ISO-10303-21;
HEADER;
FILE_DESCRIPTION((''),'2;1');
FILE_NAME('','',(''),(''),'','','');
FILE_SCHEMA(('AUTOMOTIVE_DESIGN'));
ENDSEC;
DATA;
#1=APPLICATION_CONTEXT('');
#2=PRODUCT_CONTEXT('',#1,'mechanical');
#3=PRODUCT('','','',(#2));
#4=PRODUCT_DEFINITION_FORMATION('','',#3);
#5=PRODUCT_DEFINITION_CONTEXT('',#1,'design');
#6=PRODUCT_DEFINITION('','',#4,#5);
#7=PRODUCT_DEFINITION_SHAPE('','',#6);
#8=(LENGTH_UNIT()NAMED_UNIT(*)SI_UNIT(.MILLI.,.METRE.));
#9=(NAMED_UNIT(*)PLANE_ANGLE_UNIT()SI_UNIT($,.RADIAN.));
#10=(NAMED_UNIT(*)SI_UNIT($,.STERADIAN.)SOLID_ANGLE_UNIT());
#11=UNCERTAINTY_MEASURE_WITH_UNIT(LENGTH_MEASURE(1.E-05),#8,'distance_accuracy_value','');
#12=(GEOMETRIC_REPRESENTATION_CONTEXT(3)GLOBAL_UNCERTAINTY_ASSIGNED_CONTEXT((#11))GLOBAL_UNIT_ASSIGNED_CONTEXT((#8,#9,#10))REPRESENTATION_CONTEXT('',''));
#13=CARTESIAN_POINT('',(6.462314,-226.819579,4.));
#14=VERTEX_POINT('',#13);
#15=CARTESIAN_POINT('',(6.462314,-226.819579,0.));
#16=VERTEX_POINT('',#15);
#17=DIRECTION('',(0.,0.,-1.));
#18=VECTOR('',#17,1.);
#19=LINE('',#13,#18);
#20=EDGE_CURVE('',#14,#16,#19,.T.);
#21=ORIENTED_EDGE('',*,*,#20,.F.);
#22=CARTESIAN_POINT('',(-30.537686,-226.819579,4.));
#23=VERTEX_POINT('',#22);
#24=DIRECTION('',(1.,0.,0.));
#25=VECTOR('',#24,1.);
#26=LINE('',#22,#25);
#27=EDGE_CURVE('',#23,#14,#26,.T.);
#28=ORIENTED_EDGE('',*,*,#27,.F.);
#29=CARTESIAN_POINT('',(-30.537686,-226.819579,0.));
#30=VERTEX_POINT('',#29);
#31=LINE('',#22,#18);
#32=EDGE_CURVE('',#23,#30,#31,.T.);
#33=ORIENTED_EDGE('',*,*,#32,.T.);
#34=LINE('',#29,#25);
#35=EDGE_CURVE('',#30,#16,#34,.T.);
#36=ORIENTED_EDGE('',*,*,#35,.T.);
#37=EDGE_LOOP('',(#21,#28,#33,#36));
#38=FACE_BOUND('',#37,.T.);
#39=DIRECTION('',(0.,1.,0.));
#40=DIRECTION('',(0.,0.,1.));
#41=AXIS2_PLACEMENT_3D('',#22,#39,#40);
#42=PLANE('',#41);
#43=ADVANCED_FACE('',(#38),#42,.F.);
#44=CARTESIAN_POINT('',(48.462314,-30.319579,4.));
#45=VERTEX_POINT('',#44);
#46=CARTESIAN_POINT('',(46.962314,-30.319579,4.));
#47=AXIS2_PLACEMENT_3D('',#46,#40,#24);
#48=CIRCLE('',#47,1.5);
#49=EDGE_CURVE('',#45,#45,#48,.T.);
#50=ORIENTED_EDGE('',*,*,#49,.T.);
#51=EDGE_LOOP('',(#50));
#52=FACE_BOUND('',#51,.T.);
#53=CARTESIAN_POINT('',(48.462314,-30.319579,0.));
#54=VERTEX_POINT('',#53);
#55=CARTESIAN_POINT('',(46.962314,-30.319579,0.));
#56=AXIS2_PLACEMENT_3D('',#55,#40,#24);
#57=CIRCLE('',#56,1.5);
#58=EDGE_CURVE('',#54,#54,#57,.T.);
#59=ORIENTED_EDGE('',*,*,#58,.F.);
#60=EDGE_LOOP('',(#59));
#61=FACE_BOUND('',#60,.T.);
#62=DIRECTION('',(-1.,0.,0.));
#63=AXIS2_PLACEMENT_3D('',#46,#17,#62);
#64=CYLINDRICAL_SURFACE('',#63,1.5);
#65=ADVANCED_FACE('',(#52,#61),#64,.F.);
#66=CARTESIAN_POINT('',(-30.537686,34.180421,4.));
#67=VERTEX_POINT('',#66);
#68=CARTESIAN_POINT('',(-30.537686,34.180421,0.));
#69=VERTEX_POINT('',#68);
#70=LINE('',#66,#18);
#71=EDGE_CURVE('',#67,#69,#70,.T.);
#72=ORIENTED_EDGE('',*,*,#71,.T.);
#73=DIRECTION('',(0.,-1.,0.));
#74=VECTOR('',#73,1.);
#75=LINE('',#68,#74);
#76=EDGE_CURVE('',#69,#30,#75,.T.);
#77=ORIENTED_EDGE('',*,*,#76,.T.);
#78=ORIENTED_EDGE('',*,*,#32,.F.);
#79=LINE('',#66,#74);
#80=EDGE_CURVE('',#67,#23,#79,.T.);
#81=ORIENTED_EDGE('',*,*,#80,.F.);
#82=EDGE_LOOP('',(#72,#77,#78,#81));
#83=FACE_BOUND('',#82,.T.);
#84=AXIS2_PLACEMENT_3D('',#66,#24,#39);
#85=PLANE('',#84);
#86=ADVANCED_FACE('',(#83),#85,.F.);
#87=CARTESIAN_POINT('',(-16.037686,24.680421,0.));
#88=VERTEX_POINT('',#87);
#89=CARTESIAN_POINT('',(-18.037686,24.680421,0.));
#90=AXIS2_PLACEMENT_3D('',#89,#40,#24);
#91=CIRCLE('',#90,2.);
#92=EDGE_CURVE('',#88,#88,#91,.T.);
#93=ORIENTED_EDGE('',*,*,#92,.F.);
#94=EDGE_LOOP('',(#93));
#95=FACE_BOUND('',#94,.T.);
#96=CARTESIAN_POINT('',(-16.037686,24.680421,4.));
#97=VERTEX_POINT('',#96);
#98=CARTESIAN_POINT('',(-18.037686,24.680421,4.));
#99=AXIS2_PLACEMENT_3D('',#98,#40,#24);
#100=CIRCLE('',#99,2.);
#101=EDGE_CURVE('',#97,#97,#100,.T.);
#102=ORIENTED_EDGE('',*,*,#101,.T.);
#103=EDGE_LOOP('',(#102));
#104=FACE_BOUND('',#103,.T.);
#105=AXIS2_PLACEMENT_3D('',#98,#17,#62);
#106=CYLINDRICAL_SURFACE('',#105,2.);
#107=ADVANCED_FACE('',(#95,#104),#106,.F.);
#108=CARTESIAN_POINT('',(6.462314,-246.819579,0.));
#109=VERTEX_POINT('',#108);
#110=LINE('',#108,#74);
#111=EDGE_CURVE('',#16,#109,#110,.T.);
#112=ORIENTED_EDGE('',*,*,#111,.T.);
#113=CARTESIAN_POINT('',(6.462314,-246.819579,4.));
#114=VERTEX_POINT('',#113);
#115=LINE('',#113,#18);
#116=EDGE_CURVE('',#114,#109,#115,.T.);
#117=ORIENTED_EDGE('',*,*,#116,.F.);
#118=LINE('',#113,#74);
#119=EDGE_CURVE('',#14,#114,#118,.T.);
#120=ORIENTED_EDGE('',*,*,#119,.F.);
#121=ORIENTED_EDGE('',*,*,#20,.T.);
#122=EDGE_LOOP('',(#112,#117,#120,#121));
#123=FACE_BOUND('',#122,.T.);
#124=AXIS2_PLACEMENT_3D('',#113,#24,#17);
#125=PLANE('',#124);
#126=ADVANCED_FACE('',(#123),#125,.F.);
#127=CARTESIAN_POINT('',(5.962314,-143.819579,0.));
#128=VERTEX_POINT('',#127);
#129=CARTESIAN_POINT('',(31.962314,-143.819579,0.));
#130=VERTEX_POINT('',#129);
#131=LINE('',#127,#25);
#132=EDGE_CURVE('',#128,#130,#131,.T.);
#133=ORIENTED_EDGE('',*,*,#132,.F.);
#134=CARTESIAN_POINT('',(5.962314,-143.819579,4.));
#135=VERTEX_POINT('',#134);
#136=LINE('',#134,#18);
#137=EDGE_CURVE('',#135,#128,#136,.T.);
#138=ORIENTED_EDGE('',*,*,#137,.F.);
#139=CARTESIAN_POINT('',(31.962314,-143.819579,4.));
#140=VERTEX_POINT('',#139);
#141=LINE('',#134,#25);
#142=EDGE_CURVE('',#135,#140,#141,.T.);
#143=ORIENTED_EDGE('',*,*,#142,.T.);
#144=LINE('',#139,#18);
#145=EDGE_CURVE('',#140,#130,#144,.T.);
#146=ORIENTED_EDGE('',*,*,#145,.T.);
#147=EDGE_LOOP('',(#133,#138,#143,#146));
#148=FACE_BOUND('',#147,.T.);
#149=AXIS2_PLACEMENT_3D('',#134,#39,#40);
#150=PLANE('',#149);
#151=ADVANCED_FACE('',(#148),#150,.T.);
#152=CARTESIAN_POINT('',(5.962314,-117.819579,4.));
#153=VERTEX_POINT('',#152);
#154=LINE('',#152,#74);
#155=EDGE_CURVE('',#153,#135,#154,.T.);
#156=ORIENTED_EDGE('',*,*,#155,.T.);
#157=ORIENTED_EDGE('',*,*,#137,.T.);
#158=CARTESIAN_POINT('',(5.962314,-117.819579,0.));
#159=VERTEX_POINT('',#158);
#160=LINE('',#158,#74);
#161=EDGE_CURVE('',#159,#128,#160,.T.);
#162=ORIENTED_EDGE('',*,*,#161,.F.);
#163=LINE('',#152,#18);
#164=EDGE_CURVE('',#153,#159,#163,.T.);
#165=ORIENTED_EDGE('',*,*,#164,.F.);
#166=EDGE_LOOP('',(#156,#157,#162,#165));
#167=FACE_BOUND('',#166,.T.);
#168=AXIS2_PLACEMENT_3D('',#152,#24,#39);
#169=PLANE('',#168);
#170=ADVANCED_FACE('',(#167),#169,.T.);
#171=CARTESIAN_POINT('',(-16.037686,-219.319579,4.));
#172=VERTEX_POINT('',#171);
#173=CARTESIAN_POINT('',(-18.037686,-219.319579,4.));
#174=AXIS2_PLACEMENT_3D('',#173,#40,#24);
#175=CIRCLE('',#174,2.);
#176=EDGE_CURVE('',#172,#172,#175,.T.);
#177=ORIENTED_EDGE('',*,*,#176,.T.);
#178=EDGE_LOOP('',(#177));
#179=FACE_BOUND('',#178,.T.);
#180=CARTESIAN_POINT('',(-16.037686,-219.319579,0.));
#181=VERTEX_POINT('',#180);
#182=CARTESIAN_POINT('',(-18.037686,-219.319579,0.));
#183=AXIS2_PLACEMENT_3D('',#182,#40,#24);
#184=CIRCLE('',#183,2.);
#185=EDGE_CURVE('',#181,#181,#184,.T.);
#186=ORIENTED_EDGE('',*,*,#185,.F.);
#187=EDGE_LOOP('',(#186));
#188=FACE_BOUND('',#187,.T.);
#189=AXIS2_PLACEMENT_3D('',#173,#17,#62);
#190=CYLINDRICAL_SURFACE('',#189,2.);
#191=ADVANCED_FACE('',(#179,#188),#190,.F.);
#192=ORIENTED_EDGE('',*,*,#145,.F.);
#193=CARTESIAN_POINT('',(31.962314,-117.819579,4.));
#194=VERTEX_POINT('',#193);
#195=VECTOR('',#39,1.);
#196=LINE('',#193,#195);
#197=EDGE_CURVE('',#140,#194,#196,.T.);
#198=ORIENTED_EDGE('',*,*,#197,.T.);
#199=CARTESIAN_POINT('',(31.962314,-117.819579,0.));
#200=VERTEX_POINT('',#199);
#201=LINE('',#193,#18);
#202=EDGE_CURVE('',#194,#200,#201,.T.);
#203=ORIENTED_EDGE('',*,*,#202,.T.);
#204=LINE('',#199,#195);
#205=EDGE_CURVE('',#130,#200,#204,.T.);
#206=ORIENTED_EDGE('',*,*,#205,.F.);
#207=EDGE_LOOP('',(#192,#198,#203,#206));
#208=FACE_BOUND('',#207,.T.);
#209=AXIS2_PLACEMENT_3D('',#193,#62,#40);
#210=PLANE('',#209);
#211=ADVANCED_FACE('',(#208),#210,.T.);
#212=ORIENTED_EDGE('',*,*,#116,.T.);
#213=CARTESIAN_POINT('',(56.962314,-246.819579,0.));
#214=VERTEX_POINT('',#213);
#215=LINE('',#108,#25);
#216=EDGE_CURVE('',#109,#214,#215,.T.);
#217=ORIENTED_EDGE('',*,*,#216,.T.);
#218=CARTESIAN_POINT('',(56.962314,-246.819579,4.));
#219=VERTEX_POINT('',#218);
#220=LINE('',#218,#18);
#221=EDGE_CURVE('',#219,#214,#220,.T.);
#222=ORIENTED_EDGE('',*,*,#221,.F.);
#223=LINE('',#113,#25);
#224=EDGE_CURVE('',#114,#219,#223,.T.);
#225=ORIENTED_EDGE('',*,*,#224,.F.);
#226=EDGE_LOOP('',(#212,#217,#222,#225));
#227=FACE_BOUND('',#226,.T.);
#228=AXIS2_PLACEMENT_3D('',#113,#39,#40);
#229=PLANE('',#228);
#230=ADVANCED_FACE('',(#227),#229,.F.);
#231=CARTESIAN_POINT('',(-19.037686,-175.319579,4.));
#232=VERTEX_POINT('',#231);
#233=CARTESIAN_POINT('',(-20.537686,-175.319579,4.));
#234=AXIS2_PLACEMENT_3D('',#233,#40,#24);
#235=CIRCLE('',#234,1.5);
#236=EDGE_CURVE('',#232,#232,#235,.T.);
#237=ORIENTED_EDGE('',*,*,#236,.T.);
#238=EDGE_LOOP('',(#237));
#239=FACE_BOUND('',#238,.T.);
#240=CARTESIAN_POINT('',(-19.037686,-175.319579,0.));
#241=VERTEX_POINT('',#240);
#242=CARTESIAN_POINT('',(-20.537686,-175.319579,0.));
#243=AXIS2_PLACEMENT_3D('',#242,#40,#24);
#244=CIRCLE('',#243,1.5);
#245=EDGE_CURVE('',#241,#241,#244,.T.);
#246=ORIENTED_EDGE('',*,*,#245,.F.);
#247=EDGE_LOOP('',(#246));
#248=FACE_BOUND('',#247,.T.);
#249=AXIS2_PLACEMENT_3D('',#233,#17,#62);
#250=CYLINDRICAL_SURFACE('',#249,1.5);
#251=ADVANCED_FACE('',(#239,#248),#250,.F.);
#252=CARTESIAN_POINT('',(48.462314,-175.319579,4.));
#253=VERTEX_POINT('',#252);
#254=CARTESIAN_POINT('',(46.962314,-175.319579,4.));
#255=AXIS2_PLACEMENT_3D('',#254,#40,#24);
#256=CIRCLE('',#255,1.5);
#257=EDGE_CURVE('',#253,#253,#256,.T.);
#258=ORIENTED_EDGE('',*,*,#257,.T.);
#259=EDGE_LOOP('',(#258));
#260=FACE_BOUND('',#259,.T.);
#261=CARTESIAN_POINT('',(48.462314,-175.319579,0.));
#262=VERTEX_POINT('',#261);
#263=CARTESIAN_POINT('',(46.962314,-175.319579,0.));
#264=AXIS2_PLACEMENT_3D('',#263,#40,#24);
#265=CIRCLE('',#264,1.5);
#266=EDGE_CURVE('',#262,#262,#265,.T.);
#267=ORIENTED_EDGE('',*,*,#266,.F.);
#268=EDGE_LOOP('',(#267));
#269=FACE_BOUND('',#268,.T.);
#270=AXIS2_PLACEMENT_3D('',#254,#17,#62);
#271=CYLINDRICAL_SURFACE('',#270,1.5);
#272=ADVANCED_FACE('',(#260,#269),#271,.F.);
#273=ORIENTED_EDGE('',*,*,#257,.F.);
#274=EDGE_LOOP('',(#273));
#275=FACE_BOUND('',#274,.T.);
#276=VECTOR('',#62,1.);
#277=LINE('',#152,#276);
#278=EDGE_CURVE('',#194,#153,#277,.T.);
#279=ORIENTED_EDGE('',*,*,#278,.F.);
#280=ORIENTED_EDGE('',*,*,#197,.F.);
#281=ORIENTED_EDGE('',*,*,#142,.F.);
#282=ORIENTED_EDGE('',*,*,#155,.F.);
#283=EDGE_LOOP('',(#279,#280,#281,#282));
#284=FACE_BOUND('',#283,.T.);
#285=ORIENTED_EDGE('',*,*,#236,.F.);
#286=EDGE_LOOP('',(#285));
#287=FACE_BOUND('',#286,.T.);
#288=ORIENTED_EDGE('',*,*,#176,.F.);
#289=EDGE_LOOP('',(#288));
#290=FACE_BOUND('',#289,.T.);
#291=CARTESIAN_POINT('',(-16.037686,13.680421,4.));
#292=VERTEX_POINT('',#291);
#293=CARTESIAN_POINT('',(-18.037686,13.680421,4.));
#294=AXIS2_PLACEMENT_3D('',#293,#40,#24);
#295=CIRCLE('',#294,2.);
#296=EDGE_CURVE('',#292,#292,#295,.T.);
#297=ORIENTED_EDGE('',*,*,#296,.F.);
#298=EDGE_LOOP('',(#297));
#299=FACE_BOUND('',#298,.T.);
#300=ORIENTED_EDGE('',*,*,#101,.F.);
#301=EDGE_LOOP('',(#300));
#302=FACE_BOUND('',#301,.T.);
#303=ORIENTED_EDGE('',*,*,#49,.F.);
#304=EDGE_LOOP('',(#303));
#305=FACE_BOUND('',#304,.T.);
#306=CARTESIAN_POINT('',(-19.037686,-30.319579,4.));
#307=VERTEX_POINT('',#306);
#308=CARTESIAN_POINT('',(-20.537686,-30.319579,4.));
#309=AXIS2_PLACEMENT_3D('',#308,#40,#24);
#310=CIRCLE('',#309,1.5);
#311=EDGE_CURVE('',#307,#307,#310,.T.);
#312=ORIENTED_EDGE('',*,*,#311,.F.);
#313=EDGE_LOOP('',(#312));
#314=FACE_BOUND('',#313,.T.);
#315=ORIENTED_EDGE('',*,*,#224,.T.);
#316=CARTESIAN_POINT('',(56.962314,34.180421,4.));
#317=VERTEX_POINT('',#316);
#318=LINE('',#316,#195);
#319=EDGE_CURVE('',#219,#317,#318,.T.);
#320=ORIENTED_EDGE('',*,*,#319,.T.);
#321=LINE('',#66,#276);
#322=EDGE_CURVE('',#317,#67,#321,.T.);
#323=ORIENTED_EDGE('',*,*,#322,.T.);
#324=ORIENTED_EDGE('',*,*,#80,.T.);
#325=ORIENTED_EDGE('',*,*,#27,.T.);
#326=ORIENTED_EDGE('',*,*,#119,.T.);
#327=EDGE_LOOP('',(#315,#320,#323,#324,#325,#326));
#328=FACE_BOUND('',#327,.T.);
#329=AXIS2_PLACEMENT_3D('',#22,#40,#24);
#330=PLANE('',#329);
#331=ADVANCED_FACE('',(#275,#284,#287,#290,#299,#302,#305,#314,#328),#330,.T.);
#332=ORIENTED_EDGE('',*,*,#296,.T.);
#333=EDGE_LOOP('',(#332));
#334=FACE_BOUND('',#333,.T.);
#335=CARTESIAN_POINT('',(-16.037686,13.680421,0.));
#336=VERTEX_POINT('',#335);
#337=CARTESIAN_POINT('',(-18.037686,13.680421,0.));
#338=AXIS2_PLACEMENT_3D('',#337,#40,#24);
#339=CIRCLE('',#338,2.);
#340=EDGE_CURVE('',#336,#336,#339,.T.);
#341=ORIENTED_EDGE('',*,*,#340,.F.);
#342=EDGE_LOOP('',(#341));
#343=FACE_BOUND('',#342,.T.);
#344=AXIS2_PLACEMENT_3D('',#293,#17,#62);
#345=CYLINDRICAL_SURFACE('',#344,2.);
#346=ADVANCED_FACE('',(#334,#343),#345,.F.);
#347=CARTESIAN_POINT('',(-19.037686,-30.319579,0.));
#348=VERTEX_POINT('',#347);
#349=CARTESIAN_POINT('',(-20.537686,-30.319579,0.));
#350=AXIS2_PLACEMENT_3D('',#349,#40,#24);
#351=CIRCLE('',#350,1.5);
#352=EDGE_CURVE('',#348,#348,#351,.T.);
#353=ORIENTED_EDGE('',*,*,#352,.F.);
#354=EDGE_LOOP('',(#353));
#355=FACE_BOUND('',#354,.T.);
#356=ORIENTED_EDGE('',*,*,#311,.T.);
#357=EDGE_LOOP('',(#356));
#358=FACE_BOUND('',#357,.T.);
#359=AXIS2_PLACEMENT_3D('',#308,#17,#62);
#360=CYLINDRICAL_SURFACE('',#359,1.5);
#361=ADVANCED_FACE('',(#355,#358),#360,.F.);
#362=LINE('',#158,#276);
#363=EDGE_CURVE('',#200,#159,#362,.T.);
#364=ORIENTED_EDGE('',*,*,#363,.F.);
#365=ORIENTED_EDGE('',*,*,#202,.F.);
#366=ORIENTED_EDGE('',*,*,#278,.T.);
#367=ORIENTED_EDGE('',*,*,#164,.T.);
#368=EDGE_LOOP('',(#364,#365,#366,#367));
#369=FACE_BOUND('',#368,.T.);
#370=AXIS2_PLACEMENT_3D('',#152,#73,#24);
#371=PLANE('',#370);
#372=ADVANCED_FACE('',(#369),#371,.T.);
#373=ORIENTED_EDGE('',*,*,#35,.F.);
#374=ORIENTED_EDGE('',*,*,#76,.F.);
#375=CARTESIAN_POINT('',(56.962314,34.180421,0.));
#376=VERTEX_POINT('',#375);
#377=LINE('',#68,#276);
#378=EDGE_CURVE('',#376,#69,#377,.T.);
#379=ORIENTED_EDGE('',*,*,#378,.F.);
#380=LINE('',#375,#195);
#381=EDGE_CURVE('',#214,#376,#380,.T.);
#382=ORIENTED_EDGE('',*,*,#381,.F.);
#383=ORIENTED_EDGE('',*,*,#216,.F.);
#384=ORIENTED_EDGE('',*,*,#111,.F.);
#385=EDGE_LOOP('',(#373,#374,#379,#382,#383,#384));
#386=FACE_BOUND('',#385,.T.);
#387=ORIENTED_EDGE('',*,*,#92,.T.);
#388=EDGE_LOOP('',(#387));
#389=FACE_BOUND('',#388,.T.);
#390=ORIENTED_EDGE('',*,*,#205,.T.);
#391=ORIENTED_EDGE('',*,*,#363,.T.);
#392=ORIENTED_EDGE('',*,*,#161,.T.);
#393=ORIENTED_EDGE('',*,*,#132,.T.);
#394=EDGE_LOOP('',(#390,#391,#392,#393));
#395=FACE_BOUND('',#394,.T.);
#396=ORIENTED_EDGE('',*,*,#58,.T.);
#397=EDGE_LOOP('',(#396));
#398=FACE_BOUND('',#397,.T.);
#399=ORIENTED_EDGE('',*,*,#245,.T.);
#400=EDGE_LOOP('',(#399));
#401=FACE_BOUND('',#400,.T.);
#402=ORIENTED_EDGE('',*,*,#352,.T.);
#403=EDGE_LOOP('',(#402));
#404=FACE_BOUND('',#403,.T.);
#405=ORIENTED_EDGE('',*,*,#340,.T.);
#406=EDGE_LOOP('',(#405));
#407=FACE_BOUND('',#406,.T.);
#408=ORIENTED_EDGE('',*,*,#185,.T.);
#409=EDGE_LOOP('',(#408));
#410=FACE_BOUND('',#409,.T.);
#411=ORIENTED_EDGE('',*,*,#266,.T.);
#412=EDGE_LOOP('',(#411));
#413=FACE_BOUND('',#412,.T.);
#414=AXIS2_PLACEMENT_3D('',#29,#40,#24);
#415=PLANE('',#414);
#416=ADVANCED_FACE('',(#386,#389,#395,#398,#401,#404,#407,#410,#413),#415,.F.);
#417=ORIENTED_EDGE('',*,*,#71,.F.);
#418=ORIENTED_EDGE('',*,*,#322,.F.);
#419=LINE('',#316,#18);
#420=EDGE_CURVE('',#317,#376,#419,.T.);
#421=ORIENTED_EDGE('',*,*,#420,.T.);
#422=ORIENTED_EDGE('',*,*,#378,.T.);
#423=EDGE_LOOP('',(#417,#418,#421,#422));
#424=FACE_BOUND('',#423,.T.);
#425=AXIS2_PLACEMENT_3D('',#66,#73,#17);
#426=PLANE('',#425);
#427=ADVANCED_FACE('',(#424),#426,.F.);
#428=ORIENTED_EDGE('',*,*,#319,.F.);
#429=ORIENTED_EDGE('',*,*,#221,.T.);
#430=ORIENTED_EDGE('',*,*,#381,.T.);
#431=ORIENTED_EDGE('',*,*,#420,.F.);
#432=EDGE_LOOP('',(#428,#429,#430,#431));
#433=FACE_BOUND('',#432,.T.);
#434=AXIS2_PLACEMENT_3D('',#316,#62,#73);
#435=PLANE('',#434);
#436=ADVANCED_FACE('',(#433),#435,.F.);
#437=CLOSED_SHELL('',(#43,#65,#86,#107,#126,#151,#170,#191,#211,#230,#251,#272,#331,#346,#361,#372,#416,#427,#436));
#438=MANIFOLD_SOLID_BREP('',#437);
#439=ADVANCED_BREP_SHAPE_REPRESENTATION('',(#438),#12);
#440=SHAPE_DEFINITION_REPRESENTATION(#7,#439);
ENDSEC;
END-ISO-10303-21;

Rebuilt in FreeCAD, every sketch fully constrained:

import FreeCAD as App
import Part
import Sketcher

doc = App.newDocument("Part")
body = doc.addObject("PartDesign::Body", "Body")

# Sketch on XY plane
sketch1 = body.newObject("Sketcher::SketchObject", "Sketch")
sketch1.AttachmentSupport = (doc.getObject("XY_Plane"), [""])
sketch1.MapMode = "FlatFace"
sketch1.addGeometry([
    Part.LineSegment(App.Vector(56.962314, 34.180421, 0), App.Vector(-30.537686, 34.180421, 0)),  # 0
    Part.LineSegment(App.Vector(-30.537686, 34.180421, 0), App.Vector(-30.537686, -226.819579, 0)),  # 1
    Part.LineSegment(App.Vector(-30.537686, -226.819579, 0), App.Vector(6.462314, -226.819579, 0)),  # 2
    Part.LineSegment(App.Vector(6.462314, -226.819579, 0), App.Vector(6.462314, -246.819579, 0)),  # 3
    Part.LineSegment(App.Vector(6.462314, -246.819579, 0), App.Vector(56.962314, -246.819579, 0)),  # 4
    Part.LineSegment(App.Vector(56.962314, -246.819579, 0), App.Vector(56.962314, 34.180421, 0)),  # 5
    Part.Circle(App.Vector(46.962314, -175.319579, 0), App.Vector(0, 0, 1), 1.5),  # 6
    Part.LineSegment(App.Vector(5.962314, -143.819579, 0), App.Vector(5.962314, -117.819579, 0)),  # 7
    Part.LineSegment(App.Vector(5.962314, -117.819579, 0), App.Vector(31.962314, -117.819579, 0)),  # 8
    Part.LineSegment(App.Vector(31.962314, -117.819579, 0), App.Vector(31.962314, -143.819579, 0)),  # 9
    Part.LineSegment(App.Vector(31.962314, -143.819579, 0), App.Vector(5.962314, -143.819579, 0)),  # 10
    Part.Circle(App.Vector(-18.037686, -219.319579, 0), App.Vector(0, 0, 1), 2),  # 11
    Part.Circle(App.Vector(-20.537686, -175.319579, 0), App.Vector(0, 0, 1), 1.5),  # 12
    Part.Circle(App.Vector(46.962314, -30.319579, 0), App.Vector(0, 0, 1), 1.5),  # 13
    Part.Circle(App.Vector(-20.537686, -30.319579, 0), App.Vector(0, 0, 1), 1.5),  # 14
    Part.Circle(App.Vector(-18.037686, 13.680421, 0), App.Vector(0, 0, 1), 2),  # 15
    Part.Circle(App.Vector(-18.037686, 24.680421, 0), App.Vector(0, 0, 1), 2),  # 16
], False)
sketch1.addConstraint([
    Sketcher.Constraint("Coincident", 0, 2, 1, 1),
    Sketcher.Constraint("Coincident", 1, 2, 2, 1),
    Sketcher.Constraint("Coincident", 2, 2, 3, 1),
    Sketcher.Constraint("Coincident", 3, 2, 4, 1),
    Sketcher.Constraint("Coincident", 4, 2, 5, 1),
    Sketcher.Constraint("Coincident", 5, 2, 0, 1),
    Sketcher.Constraint("Coincident", 7, 2, 8, 1),
    Sketcher.Constraint("Coincident", 8, 2, 9, 1),
    Sketcher.Constraint("Coincident", 9, 2, 10, 1),
    Sketcher.Constraint("Coincident", 10, 2, 7, 1),
    Sketcher.Constraint("Horizontal", 0),
    Sketcher.Constraint("Vertical", 1),
    Sketcher.Constraint("Horizontal", 2),
    Sketcher.Constraint("Vertical", 3),
    Sketcher.Constraint("Horizontal", 4),
    Sketcher.Constraint("Vertical", 5),
    Sketcher.Constraint("Vertical", 7),
    Sketcher.Constraint("Horizontal", 8),
    Sketcher.Constraint("Vertical", 9),
    Sketcher.Constraint("Horizontal", 10),
    Sketcher.Constraint("Equal", 6, 12),
    Sketcher.Constraint("Equal", 12, 13),
    Sketcher.Constraint("Equal", 13, 14),
    Sketcher.Constraint("Equal", 11, 15),
    Sketcher.Constraint("Equal", 15, 16),
    Sketcher.Constraint("Horizontal", 6, 3, 12, 3),
    Sketcher.Constraint("Horizontal", 13, 3, 14, 3),
    Sketcher.Constraint("Vertical", 6, 3, 13, 3),
    Sketcher.Constraint("Vertical", 12, 3, 14, 3),
    Sketcher.Constraint("Vertical", 11, 3, 15, 3),
    Sketcher.Constraint("Vertical", 15, 3, 16, 3),
    Sketcher.Constraint("Equal", 10, 7),
    Sketcher.Constraint("Diameter", 6, 3.0),
    Sketcher.Constraint("Diameter", 11, 4.0),
    Sketcher.Constraint("DistanceX", 2, 1, 2, 2, 37.0),
    Sketcher.Constraint("DistanceX", 8, 1, 8, 2, 26.0),
    Sketcher.Constraint("DistanceY", 1, 2, 1, 1, 261.0),
    Sketcher.Constraint("DistanceY", 3, 2, 3, 1, 20.0),
    Sketcher.Constraint("DistanceX", 0, 2, 0, 1, 87.5),
    Sketcher.Constraint("DistanceX", 11, 3, 6, 3, 65.0),
    Sketcher.Constraint("DistanceY", 11, 3, 6, 3, 44.0),
    Sketcher.Constraint("DistanceY", 6, 3, 13, 3, 145.0),
    Sketcher.Constraint("DistanceY", 14, 3, 15, 3, 44.0),
    Sketcher.Constraint("DistanceY", 15, 3, 16, 3, 11.0),
    Sketcher.Constraint("DistanceX", 0, 2, 14, 3, 10.0),
    Sketcher.Constraint("DistanceX", 6, 3, 4, 2, 10.0),
    Sketcher.Constraint("DistanceX", 7, 2, 6, 3, 41.0),
    Sketcher.Constraint("DistanceY", 2, 2, 9, 2, 83.0),
    Sketcher.Constraint("DistanceY", 16, 3, 0, 2, 9.5),
    Sketcher.Constraint("DistanceY", 6, 3, -1, 1, 175.319579),
    Sketcher.Constraint("DistanceX", -1, 1, 6, 3, 46.962314),
])
pad1 = body.newObject("PartDesign::Pad", "Pad")
pad1.Profile = sketch1
pad1.Length = 4

doc.recompute()
